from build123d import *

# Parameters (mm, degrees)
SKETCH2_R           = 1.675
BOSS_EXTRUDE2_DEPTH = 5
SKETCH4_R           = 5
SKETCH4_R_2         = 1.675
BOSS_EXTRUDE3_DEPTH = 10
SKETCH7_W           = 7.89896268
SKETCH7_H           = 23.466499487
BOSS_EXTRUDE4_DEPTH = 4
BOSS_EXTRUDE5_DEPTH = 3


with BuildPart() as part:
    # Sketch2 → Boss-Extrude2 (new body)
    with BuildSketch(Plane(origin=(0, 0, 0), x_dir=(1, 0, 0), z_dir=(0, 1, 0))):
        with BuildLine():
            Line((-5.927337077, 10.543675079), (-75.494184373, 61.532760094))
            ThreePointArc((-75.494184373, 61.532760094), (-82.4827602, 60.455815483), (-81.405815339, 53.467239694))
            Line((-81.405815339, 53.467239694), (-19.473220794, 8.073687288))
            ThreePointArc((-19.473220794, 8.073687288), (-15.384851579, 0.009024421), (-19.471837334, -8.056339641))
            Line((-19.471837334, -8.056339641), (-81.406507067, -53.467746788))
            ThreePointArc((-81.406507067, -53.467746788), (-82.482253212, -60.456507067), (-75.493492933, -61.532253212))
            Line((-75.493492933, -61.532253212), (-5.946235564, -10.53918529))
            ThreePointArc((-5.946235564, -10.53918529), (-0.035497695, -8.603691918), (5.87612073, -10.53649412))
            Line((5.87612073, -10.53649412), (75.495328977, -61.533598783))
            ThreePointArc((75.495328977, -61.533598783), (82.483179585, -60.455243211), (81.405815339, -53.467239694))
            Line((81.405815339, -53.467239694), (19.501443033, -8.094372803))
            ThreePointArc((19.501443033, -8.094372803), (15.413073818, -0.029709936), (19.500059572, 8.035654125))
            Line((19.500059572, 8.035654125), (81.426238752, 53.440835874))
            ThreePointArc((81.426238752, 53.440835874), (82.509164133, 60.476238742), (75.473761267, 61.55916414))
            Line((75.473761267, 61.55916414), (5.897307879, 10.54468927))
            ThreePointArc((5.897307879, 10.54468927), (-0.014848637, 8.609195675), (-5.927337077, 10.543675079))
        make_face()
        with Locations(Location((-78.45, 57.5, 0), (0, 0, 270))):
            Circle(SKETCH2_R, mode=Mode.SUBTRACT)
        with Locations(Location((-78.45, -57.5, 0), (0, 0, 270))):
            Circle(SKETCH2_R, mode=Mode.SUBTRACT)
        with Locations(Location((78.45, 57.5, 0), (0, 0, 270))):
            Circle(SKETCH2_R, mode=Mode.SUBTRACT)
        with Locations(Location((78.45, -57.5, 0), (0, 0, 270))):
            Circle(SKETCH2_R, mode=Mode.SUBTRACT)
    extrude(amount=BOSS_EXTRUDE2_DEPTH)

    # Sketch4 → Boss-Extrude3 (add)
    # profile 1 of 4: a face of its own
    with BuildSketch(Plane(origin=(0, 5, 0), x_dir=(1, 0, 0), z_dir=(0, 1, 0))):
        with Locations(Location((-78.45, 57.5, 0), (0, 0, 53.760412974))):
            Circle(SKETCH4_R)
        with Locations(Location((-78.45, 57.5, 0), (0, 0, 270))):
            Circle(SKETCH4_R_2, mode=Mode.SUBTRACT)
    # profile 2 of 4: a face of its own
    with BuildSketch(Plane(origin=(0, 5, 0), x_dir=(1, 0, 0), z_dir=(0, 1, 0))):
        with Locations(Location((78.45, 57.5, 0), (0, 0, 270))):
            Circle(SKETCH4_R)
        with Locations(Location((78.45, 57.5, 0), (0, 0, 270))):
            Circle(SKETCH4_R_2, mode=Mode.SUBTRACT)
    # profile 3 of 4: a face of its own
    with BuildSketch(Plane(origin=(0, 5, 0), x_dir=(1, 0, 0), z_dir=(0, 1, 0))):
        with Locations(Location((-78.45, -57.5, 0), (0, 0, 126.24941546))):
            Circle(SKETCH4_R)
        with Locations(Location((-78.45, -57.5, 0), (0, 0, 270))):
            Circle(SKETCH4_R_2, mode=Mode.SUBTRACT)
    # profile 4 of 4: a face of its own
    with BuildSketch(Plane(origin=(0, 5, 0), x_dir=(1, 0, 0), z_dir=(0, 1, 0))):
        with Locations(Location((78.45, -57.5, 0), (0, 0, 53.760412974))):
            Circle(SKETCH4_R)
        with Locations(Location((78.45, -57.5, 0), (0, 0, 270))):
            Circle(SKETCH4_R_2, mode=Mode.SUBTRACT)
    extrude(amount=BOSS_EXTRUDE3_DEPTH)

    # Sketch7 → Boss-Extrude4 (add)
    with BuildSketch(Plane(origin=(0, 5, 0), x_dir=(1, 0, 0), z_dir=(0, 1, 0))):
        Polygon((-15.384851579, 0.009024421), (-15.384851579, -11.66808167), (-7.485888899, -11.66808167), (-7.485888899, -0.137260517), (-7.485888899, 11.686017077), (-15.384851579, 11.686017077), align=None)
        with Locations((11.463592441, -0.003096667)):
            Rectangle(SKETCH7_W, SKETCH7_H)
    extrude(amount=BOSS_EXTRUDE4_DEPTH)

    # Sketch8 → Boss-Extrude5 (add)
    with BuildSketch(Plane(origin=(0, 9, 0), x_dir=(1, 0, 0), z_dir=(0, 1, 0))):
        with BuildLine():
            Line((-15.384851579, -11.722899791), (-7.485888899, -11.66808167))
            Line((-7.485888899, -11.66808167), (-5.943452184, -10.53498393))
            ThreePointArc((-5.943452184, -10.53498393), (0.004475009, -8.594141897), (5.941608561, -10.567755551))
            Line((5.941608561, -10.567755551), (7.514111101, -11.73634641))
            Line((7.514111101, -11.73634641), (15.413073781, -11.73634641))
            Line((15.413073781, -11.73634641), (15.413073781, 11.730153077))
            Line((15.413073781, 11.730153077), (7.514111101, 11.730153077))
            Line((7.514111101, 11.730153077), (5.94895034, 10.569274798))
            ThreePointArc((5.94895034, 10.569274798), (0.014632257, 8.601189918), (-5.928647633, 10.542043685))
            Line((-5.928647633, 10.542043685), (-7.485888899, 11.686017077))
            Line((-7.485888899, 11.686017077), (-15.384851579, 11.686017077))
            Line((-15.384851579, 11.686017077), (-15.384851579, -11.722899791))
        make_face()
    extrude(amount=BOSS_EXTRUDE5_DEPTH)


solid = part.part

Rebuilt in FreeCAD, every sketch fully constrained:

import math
import FreeCAD as App
import Part
import Sketcher


def add_polygon(sketch, points):
    """Adds a closed chain of lines whose ends are joined by coincident constraints."""
    first, n = sketch.GeometryCount, len(points)
    for a, b in zip(points, points[1:] + points[:1]):
        sketch.addGeometry(Part.LineSegment(App.Vector(*a, 0), App.Vector(*b, 0)), False)
    for i in range(n):
        sketch.addConstraint(Sketcher.Constraint("Coincident", first + i, 2, first + (i + 1) % n, 1))

doc = App.newDocument("Part")
body = doc.addObject("PartDesign::Body", "Body")

sketch1 = body.newObject("Sketcher::SketchObject", "Sketch")
sketch1.AttachmentSupport = (doc.getObject("XZ_Plane"), [""])
sketch1.MapMode = "FlatFace"
sketch1.addGeometry(Part.LineSegment(App.Vector(-5.927337, -10.543675, 0), App.Vector(-75.494184, -61.53276, 0)), False)
sketch1.addGeometry(Part.ArcOfCircle(Part.Circle(App.Vector(-78.45, -57.5, 0), App.Vector(0, 0, 1), 5), math.radians(126.239587), math.radians(306.239591)), False)
sketch1.addGeometry(Part.LineSegment(App.Vector(-81.405815, -53.46724, 0), App.Vector(-19.473221, -8.073687, 0)), False)
sketch1.addGeometry(Part.ArcOfCircle(Part.Circle(App.Vector(-25.384852, -0.008167, 0), App.Vector(0, 0, 1), 10), math.radians(-53.760413), math.radians(53.750585)), False)
sketch1.addGeometry(Part.LineSegment(App.Vector(-19.471837, 8.05634, 0), App.Vector(-81.406507, 53.467747, 0)), False)
sketch1.addGeometry(Part.ArcOfCircle(Part.Circle(App.Vector(-78.45, 57.5, 0), App.Vector(0, 0, 1), 5), math.radians(53.750585), math.radians(233.750585)), False)
sketch1.addGeometry(Part.LineSegment(App.Vector(-75.493493, 61.532253, 0), App.Vector(-5.946236, 10.539185, 0)), False)
sketch1.addGeometry(Part.ArcOfCircle(Part.Circle(App.Vector(-0.033221, 18.603692, 0), App.Vector(0, 0, 1), 10), math.radians(-126.249415), math.radians(-53.776669)), False)
sketch1.addGeometry(Part.LineSegment(App.Vector(5.876121, 10.536494, 0), App.Vector(75.495329, 61.533599, 0)), False)
sketch1.addGeometry(Part.ArcOfCircle(Part.Circle(App.Vector(78.45, 57.5, 0), App.Vector(0, 0, 1), 5), math.radians(-53.760413), math.radians(126.22333)), False)
sketch1.addGeometry(Part.LineSegment(App.Vector(81.405815, 53.46724, 0), App.Vector(19.501443, 8.094373, 0)), False)
sketch1.addGeometry(Part.ArcOfCircle(Part.Circle(App.Vector(25.413074, 0.028852, 0), App.Vector(0, 0, 1), 10), math.radians(126.239587), math.radians(233.750585)), False)
sketch1.addGeometry(Part.LineSegment(App.Vector(19.50006, -8.035654, 0), App.Vector(81.426239, -53.440836, 0)), False)
sketch1.addGeometry(Part.ArcOfCircle(Part.Circle(App.Vector(78.45, -57.5, 0), App.Vector(0, 0, 1), 5.03337), math.radians(-126.249417), math.radians(53.750583)), False)
sketch1.addGeometry(Part.LineSegment(App.Vector(75.473761, -61.559164, 0), App.Vector(5.897308, -10.544689, 0)), False)
sketch1.addGeometry(Part.ArcOfCircle(Part.Circle(App.Vector(-0.015706, -18.609196, 0), App.Vector(0, 0, 1), 10), math.radians(53.750585), math.radians(126.239587)), False)
sketch1.addGeometry(Part.Circle(App.Vector(-78.45, 57.5, 0), App.Vector(0, 0, 1), 1.675), False)
sketch1.addGeometry(Part.Circle(App.Vector(78.45, 57.5, 0), App.Vector(0, 0, 1), 1.675), False)
sketch1.addGeometry(Part.Circle(App.Vector(-78.45, -57.5, 0), App.Vector(0, 0, 1), 1.675), False)
sketch1.addGeometry(Part.Circle(App.Vector(78.45, -57.5, 0), App.Vector(0, 0, 1), 1.675), False)
sketch1.addConstraint(Sketcher.Constraint("Tangent", 0, 2, 1, 2))
sketch1.addConstraint(Sketcher.Constraint("Tangent", 1, 1, 2, 1))
sketch1.addConstraint(Sketcher.Constraint("Tangent", 2, 2, 3, 1))
sketch1.addConstraint(Sketcher.Constraint("Tangent", 3, 2, 4, 1))
sketch1.addConstraint(Sketcher.Constraint("Tangent", 4, 2, 5, 2))
sketch1.addConstraint(Sketcher.Constraint("Tangent", 5, 1, 6, 1))
sketch1.addConstraint(Sketcher.Constraint("Tangent", 6, 2, 7, 1))
sketch1.addConstraint(Sketcher.Constraint("Tangent", 7, 2, 8, 1))
sketch1.addConstraint(Sketcher.Constraint("Tangent", 8, 2, 9, 2))
sketch1.addConstraint(Sketcher.Constraint("Tangent", 9, 1, 10, 1))
sketch1.addConstraint(Sketcher.Constraint("Tangent", 10, 2, 11, 1))
sketch1.addConstraint(Sketcher.Constraint("Tangent", 11, 2, 12, 1))
sketch1.addConstraint(Sketcher.Constraint("Tangent", 12, 2, 13, 2))
sketch1.addConstraint(Sketcher.Constraint("Tangent", 13, 1, 14, 1))
sketch1.addConstraint(Sketcher.Constraint("Tangent", 14, 2, 15, 1))
sketch1.addConstraint(Sketcher.Constraint("Tangent", 15, 2, 0, 1))
sketch1.addConstraint(Sketcher.Constraint("Coincident", 16, 3, 5, 3))
sketch1.addConstraint(Sketcher.Constraint("Coincident", 17, 3, 9, 3))
sketch1.addConstraint(Sketcher.Constraint("Coincident", 18, 3, 1, 3))
sketch1.addConstraint(Sketcher.Constraint("Coincident", 19, 3, 13, 3))
sketch1.addConstraint(Sketcher.Constraint("Equal", 1, 5))
sketch1.addConstraint(Sketcher.Constraint("Equal", 3, 7))
sketch1.addConstraint(Sketcher.Constraint("Equal", 5, 9))
sketch1.addConstraint(Sketcher.Constraint("Equal", 7, 11))
sketch1.addConstraint(Sketcher.Constraint("Equal", 11, 15))
sketch1.addConstraint(Sketcher.Constraint("Equal", 16, 17))
sketch1.addConstraint(Sketcher.Constraint("Equal", 17, 18))
sketch1.addConstraint(Sketcher.Constraint("Equal", 18, 19))
sketch1.addConstraint(Sketcher.Constraint("Symmetric", 1, 3, 9, 3, -1, 1))
sketch1.addConstraint(Sketcher.Constraint("Symmetric", 5, 3, 13, 3, -1, 1))
sketch1.addConstraint(Sketcher.Constraint("Symmetric", 5, 3, 9, 3, -2))
sketch1.addConstraint(Sketcher.Constraint("Parallel", 0, 2))
sketch1.addConstraint(Sketcher.Constraint("Parallel", 4, 6))
sketch1.addConstraint(Sketcher.Constraint("Parallel", 2, 10))
sketch1.addConstraint(Sketcher.Constraint("Parallel", 6, 12))
sketch1.addConstraint(Sketcher.Constraint("Parallel", 12, 14))
sketch1.addConstraint(Sketcher.Constraint("Radius", 1, 5.0))
sketch1.addConstraint(Sketcher.Constraint("Radius", 3, 10.0))
sketch1.addConstraint(Sketcher.Constraint("Diameter", 16, 3.35))
sketch1.addConstraint(Sketcher.Constraint("DistanceY", 1, 3, 5, 3, 115.0))
sketch1.addConstraint(Sketcher.Constraint("DistanceX", 5, 3, 9, 3, 156.9))
sketch1.addConstraint(Sketcher.Constraint("Radius", 13, 5.03337))
sketch1.addConstraint(Sketcher.Constraint("DistanceX", 2, 2, 7, 3, 19.439999))
sketch1.addConstraint(Sketcher.Constraint("DistanceY", -1, 1, 8, 2, 61.533599))
sketch1.addConstraint(Sketcher.Constraint("DistanceX", 3, 2, 6, 2, 13.525602))
pad1 = body.newObject("PartDesign::Pad", "Pad")
pad1.Profile = sketch1
pad1.Length = 5
pad1.Reversed = True

sketch2 = body.newObject("Sketcher::SketchObject", "Sketch001")
sketch2.AttachmentSupport = (doc.getObject("XZ_Plane"), [""])
sketch2.MapMode = "FlatFace"
sketch2.AttachmentOffset = App.Placement(App.Vector(0, 0, -5), App.Rotation())
sketch2.addGeometry(Part.Circle(App.Vector(-78.45, -57.5, 0), App.Vector(0, 0, 1), 5), False)
sketch2.addGeometry(Part.Circle(App.Vector(-78.45, -57.5, 0), App.Vector(0, 0, 1), 1.675), False)
sketch2.addGeometry(Part.Circle(App.Vector(78.45, -57.5, 0), App.Vector(0, 0, 1), 5), False)
sketch2.addGeometry(Part.Circle(App.Vector(78.45, -57.5, 0), App.Vector(0, 0, 1), 1.675), False)
sketch2.addGeometry(Part.Circle(App.Vector(-78.45, 57.5, 0), App.Vector(0, 0, 1), 5), False)
sketch2.addGeometry(Part.Circle(App.Vector(-78.45, 57.5, 0), App.Vector(0, 0, 1), 1.675), False)
sketch2.addGeometry(Part.Circle(App.Vector(78.45, 57.5, 0), App.Vector(0, 0, 1), 5), False)
sketch2.addGeometry(Part.Circle(App.Vector(78.45, 57.5, 0), App.Vector(0, 0, 1), 1.675), False)
sketch2.addConstraint(Sketcher.Constraint("Coincident", 1, 3, 0, 3))
sketch2.addConstraint(Sketcher.Constraint("Coincident", 3, 3, 2, 3))
sketch2.addConstraint(Sketcher.Constraint("Coincident", 5, 3, 4, 3))
sketch2.addConstraint(Sketcher.Constraint("Coincident", 7, 3, 6, 3))
sketch2.addConstraint(Sketcher.Constraint("Equal", 0, 2))
sketch2.addConstraint(Sketcher.Constraint("Equal", 1, 3))
sketch2.addConstraint(Sketcher.Constraint("Equal", 2, 4))
sketch2.addConstraint(Sketcher.Constraint("Equal", 3, 5))
sketch2.addConstraint(Sketcher.Constraint("Equal", 4, 6))
sketch2.addConstraint(Sketcher.Constraint("Equal", 5, 7))
sketch2.addConstraint(Sketcher.Constraint("Symmetric", 2, 3, 4, 3, -1, 1))
sketch2.addConstraint(Sketcher.Constraint("Symmetric", 0, 3, 6, 3, -1, 1))
sketch2.addConstraint(Sketcher.Constraint("Symmetric", 0, 3, 2, 3, -2))
sketch2.addConstraint(Sketcher.Constraint("Diameter", 0, 10.0))
sketch2.addConstraint(Sketcher.Constraint("Diameter", 1, 3.35))
sketch2.addConstraint(Sketcher.Constraint("DistanceY", 0, 3, 4, 3, 115.0))
sketch2.addConstraint(Sketcher.Constraint("DistanceX", 0, 3, 2, 3, 156.9))
pad2 = body.newObject("PartDesign::Pad", "Pad001")
pad2.Profile = sketch2
pad2.Length = 10
pad2.Reversed = True

sketch3 = body.newObject("Sketcher::SketchObject", "Sketch002")
sketch3.AttachmentSupport = (doc.getObject("XZ_Plane"), [""])
sketch3.MapMode = "FlatFace"
sketch3.AttachmentOffset = App.Placement(App.Vector(0, 0, -5), App.Rotation())
add_polygon(sketch3, [(-15.384852, 11.668082), (-7.485889, 11.668082), (-7.485889, -11.686017), (-15.384852, -11.686017)])
add_polygon(sketch3, [(7.514111, -11.730153), (7.514111, 11.736346), (15.413074, 11.736346), (15.413074, -11.730153)])
sketch3.addConstraint(Sketcher.Constraint("Horizontal", 0))
sketch3.addConstraint(Sketcher.Constraint("Vertical", 1))
sketch3.addConstraint(Sketcher.Constraint("Horizontal", 2))
sketch3.addConstraint(Sketcher.Constraint("Vertical", 3))
sketch3.addConstraint(Sketcher.Constraint("Vertical", 4))
sketch3.addConstraint(Sketcher.Constraint("Horizontal", 5))
sketch3.addConstraint(Sketcher.Constraint("Vertical", 6))
sketch3.addConstraint(Sketcher.Constraint("Horizontal", 7))
sketch3.addConstraint(Sketcher.Constraint("Equal", 2, 5))
sketch3.addConstraint(Sketcher.Constraint("DistanceX", 0, 2, 4, 2, 15.0))
sketch3.addConstraint(Sketcher.Constraint("DistanceY", 1, 2, 1, 1, 23.354099))
sketch3.addConstraint(Sketcher.Constraint("DistanceY", 4, 1, 4, 2, 23.466499))
sketch3.addConstraint(Sketcher.Constraint("DistanceX", 0, 1, 0, 2, 7.898963))
sketch3.addConstraint(Sketcher.Constraint("DistanceX", 0, 2, -1, 1, 7.485889))
sketch3.addConstraint(Sketcher.Constraint("DistanceY", -1, 1, 0, 2, 11.668082))
sketch3.addConstraint(Sketcher.Constraint("DistanceY", -1, 1, 4, 2, 11.736346))
pad3 = body.newObject("PartDesign::Pad", "Pad002")
pad3.Profile = sketch3
pad3.Length = 4
pad3.Reversed = True

sketch4 = body.newObject("Sketcher::SketchObject", "Sketch003")
sketch4.AttachmentSupport = (doc.getObject("XZ_Plane"), [""])
sketch4.MapMode = "FlatFace"
sketch4.AttachmentOffset = App.Placement(App.Vector(0, 0, -9), App.Rotation())
sketch4.addGeometry(Part.LineSegment(App.Vector(-15.384852, 11.7229, 0), App.Vector(-7.485889, 11.668082, 0)), False)
sketch4.addGeometry(Part.LineSegment(App.Vector(-7.485889, 11.668082, 0), App.Vector(-5.943452, 10.534984, 0)), False)
sketch4.addGeometry(Part.ArcOfCircle(Part.Circle(App.Vector(-0.023099, 18.594104, 0), App.Vector(0, 0, 1), 10), math.radians(-126.301576), math.radians(-53.382452)), False)
sketch4.addGeometry(Part.LineSegment(App.Vector(5.941609, 10.567756, 0), App.Vector(7.514111, 11.736346, 0)), False)
sketch4.addGeometry(Part.LineSegment(App.Vector(7.514111, 11.736346, 0), App.Vector(15.413074, 11.736346, 0)), False)
sketch4.addGeometry(Part.LineSegment(App.Vector(15.413074, 11.736346, 0), App.Vector(15.413074, -11.730153, 0)), False)
sketch4.addGeometry(Part.LineSegment(App.Vector(15.413074, -11.730153, 0), App.Vector(7.514111, -11.730153, 0)), False)
sketch4.addGeometry(Part.LineSegment(App.Vector(7.514111, -11.730153, 0), App.Vector(5.94895, -10.569275, 0)), False)
sketch4.addGeometry(Part.ArcOfCircle(Part.Circle(App.Vector(-0.008294, -18.601164, 0), App.Vector(0, 0, 1), 10), math.radians(53.435706), math.radians(126.301576)), False)
sketch4.addGeometry(Part.LineSegment(App.Vector(-5.928648, -10.542044, 0), App.Vector(-7.485889, -11.686017, 0)), False)
sketch4.addGeometry(Part.LineSegment(App.Vector(-7.485889, -11.686017, 0), App.Vector(-15.384852, -11.686017, 0)), False)
sketch4.addGeometry(Part.LineSegment(App.Vector(-15.384852, -11.686017, 0), App.Vector(-15.384852, 11.7229, 0)), False)
sketch4.addConstraint(Sketcher.Constraint("Coincident", 0, 2, 1, 1))
sketch4.addConstraint(Sketcher.Constraint("Tangent", 1, 2, 2, 1))
sketch4.addConstraint(Sketcher.Constraint("Tangent", 2, 2, 3, 1))
sketch4.addConstraint(Sketcher.Constraint("Coincident", 3, 2, 4, 1))
sketch4.addConstraint(Sketcher.Constraint("Coincident", 4, 2, 5, 1))
sketch4.addConstraint(Sketcher.Constraint("Coincident", 5, 2, 6, 1))
sketch4.addConstraint(Sketcher.Constraint("Coincident", 6, 2, 7, 1))
sketch4.addConstraint(Sketcher.Constraint("Tangent", 7, 2, 8, 1))
sketch4.addConstraint(Sketcher.Constraint("Tangent", 8, 2, 9, 1))
sketch4.addConstraint(Sketcher.Constraint("Coincident", 9, 2, 10, 1))
sketch4.addConstraint(Sketcher.Constraint("Coincident", 10, 2, 11, 1))
sketch4.addConstraint(Sketcher.Constraint("Coincident", 11, 2, 0, 1))
sketch4.addConstraint(Sketcher.Constraint("Horizontal", 4))
sketch4.addConstraint(Sketcher.Constraint("Vertical", 5))
sketch4.addConstraint(Sketcher.Constraint("Horizontal", 6))
sketch4.addConstraint(Sketcher.Constraint("Horizontal", 10))
sketch4.addConstraint(Sketcher.Constraint("Vertical", 11))
sketch4.addConstraint(Sketcher.Constraint("Equal", 2, 8))
sketch4.addConstraint(Sketcher.Constraint("Vertical", 3, 2, 6, 2))
sketch4.addConstraint(Sketcher.Constraint("Vertical", 0, 2, 9, 2))
sketch4.addConstraint(Sketcher.Constraint("Equal", 6, 10))
sketch4.addConstraint(Sketcher.Constraint("Radius", 2, 10.0))
sketch4.addConstraint(Sketcher.Constraint("DistanceX", 0, 2, 3, 2, 15.0))
sketch4.addConstraint(Sketcher.Constraint("DistanceY", 5, 2, 5, 1, 23.466499))
sketch4.addConstraint(Sketcher.Constraint("DistanceY", 9, 2, 1, 2, 22.221001))
sketch4.addConstraint(Sketcher.Constraint("DistanceX", 2, 3, -1, 1, 0.023099))
sketch4.addConstraint(Sketcher.Constraint("DistanceY", -1, 1, 11, 2, 11.7229))
sketch4.addConstraint(Sketcher.Constraint("DistanceX", 10, 2, 7, 2, 21.333802))
sketch4.addConstraint(Sketcher.Constraint("DistanceX", 11, 2, 1, 2, 9.441399))
sketch4.addConstraint(Sketcher.Constraint("DistanceX", 4, 1, 4, 2, 7.898963))
sketch4.addConstraint(Sketcher.Constraint("DistanceY", 11, 1, 11, 2, 23.408917))
sketch4.addConstraint(Sketcher.Constraint("DistanceX", 0, 2, -1, 1, 7.485889))
sketch4.addConstraint(Sketcher.Constraint("DistanceX", -1, 1, 2, 2, 5.941609))
sketch4.addConstraint(Sketcher.Constraint("DistanceX", 1, 2, 8, 3, 5.935158))
pad4 = body.newObject("PartDesign::Pad", "Pad003")
pad4.Profile = sketch4
pad4.Length = 3
pad4.Reversed = True

doc.recompute()
